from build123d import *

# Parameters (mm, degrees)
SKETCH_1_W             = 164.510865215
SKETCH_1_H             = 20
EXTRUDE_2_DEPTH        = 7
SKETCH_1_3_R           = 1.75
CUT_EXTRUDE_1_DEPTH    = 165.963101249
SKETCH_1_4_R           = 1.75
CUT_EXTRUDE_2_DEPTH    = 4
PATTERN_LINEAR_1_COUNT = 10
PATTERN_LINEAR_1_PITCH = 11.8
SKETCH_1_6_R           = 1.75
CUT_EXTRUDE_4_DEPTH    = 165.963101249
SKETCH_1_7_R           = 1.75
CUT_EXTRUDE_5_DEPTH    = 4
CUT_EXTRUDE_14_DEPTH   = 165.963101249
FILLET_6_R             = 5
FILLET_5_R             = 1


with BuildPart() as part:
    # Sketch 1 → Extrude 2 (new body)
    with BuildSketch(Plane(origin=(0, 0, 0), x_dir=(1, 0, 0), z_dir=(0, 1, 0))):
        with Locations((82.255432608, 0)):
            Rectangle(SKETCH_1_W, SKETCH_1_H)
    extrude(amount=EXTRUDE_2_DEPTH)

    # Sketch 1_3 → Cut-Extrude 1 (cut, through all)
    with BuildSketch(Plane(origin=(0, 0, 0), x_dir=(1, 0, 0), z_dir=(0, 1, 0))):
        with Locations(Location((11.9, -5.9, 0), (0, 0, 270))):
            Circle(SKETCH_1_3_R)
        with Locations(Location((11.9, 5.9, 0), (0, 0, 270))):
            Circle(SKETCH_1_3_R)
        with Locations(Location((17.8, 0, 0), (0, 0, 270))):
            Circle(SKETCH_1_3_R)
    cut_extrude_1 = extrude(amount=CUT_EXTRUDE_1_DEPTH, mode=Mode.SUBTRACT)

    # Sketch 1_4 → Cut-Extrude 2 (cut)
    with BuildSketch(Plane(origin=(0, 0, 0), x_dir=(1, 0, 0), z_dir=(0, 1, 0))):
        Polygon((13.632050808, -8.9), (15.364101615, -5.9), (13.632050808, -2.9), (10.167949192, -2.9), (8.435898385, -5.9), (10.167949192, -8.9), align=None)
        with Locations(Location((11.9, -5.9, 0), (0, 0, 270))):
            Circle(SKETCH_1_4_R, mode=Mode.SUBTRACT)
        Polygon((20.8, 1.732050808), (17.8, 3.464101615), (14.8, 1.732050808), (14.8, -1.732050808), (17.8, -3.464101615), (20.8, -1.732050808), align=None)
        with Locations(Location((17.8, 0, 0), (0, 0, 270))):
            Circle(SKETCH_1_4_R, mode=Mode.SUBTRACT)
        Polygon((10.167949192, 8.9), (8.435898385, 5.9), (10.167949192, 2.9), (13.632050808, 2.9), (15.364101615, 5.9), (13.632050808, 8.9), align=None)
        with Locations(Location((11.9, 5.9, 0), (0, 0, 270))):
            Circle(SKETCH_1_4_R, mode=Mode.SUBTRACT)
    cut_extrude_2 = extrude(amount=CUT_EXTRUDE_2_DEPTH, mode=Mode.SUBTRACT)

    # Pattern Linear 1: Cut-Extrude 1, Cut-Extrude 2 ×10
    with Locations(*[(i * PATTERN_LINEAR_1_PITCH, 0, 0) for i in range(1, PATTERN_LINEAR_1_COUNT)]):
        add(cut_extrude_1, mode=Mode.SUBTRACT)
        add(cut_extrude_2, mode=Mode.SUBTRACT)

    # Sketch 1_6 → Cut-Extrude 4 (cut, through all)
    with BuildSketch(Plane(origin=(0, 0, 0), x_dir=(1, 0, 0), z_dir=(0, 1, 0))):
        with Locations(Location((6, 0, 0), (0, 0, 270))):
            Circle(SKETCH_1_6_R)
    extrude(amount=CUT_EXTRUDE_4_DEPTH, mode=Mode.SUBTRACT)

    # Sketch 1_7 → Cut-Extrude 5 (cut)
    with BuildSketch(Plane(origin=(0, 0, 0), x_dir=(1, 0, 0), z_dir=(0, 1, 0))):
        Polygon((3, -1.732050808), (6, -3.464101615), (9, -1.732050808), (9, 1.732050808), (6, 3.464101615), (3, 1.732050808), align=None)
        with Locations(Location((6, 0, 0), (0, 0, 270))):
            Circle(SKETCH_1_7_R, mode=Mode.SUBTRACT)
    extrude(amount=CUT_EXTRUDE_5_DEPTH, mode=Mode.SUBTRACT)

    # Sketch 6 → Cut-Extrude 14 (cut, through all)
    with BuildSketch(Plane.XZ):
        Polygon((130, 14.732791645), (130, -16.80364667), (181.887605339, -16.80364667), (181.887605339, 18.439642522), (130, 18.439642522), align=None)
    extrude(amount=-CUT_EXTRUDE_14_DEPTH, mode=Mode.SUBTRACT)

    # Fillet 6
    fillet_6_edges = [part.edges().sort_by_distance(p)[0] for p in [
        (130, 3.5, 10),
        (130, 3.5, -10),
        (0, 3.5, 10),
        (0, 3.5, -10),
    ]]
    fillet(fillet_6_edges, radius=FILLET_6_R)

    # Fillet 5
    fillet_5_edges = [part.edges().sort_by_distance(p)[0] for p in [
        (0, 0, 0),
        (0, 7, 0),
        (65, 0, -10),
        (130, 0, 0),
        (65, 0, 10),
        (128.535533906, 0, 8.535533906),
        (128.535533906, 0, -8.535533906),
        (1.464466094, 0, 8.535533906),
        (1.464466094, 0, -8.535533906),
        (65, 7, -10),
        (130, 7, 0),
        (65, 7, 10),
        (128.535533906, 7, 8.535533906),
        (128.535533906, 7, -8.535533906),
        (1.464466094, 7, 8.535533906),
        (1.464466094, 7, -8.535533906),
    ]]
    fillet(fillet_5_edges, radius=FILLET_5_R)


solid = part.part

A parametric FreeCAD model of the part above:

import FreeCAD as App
import Part
import Sketcher
from FreeCAD import Vector
Q = App.Units.Quantity


def edges_at(feature, points):
    """Names of the edges that pass closest to the given points."""
    edges = feature.Shape.Edges
    near = lambda p: min(range(len(edges)), key=lambda i: edges[i].distToShape(Part.Vertex(*p))[0])
    return sorted({f"Edge{near(p) + 1}" for p in points})


def add_polygon(sketch, points):
    """Adds a closed chain of lines whose ends are joined by coincident constraints."""
    first, n = sketch.GeometryCount, len(points)
    for a, b in zip(points, points[1:] + points[:1]):
        sketch.addGeometry(Part.LineSegment(App.Vector(*a, 0), App.Vector(*b, 0)), False)
    for i in range(n):
        sketch.addConstraint(Sketcher.Constraint("Coincident", first + i, 2, first + (i + 1) % n, 1))

doc = App.newDocument("Part")
body = doc.addObject("PartDesign::Body", "Body")

sketch1 = body.newObject("Sketcher::SketchObject", "Sketch")
sketch1.AttachmentSupport = (doc.getObject("XZ_Plane"), [""])
sketch1.MapMode = "FlatFace"
add_polygon(sketch1, [(0, -10), (0, 10), (165, 10), (165, -10)])
sketch1.addConstraint(Sketcher.Constraint("Vertical", 0))
sketch1.addConstraint(Sketcher.Constraint("Horizontal", 1))
sketch1.addConstraint(Sketcher.Constraint("Vertical", 2))
sketch1.addConstraint(Sketcher.Constraint("Horizontal", 3))
sketch1.addConstraint(Sketcher.Constraint("Symmetric", 0, 2, 3, 2, -1, 1))
sketch1.addConstraint(Sketcher.Constraint("DistanceY", 0, 1, 0, 2, Q("20 mm")))
sketch1.addConstraint(Sketcher.Constraint("DistanceX", 1, 1, 1, 2, Q("164.510865 mm")))
pad1 = body.newObject("PartDesign::Pad", "Pad")
pad1.Profile = sketch1
pad1.Length = 7
pad1.Reversed = True

sketch2 = body.newObject("Sketcher::SketchObject", "Sketch001")
sketch2.AttachmentSupport = (doc.getObject("XZ_Plane"), [""])
sketch2.MapMode = "FlatFace"
sketch2.addGeometry(Part.Circle(Vector(11.9, 5.9, 0), Vector(0, 0, 1), 1.8), False)
sketch2.addGeometry(Part.Circle(Vector(11.9, -5.9, 0), Vector(0, 0, 1), 1.8), False)
sketch2.addGeometry(Part.Circle(Vector(17.8, 0, 0), Vector(0, 0, 1), 1.8), False)
sketch2.addConstraint(Sketcher.Constraint("Equal", 0, 1))
sketch2.addConstraint(Sketcher.Constraint("Equal", 1, 2))
sketch2.addConstraint(Sketcher.Constraint("Symmetric", 0, 3, 1, 3, -1))
sketch2.addConstraint(Sketcher.Constraint("PointOnObject", 2, 3, -1))
sketch2.addConstraint(Sketcher.Constraint("Diameter", 0, Q("3.5 mm")))
sketch2.addConstraint(Sketcher.Constraint("DistanceX", -1, 1, 0, 3, Q("11.9 mm")))
sketch2.addConstraint(Sketcher.Constraint("DistanceY", -1, 1, 0, 3, Q("5.9 mm")))
sketch2.addConstraint(Sketcher.Constraint("DistanceX", -1, 1, 2, 3, Q("17.8 mm")))
pocket1 = body.newObject("PartDesign::Pocket", "Pocket")
pocket1.Profile = sketch2
pocket1.Type = "ThroughAll"

sketch3 = body.newObject("Sketcher::SketchObject", "Sketch002")
sketch3.AttachmentSupport = (doc.getObject("XZ_Plane"), [""])
sketch3.MapMode = "FlatFace"
add_polygon(sketch3, [(13.6, 8.9), (15.4, 5.9), (13.6, 2.9), (10.2, 2.9), (8.4, 5.9), (10.2, 8.9)])
sketch3.addGeometry(Part.Circle(Vector(11.9, 5.9, 0), Vector(0, 0, 1), 1.8), False)
add_polygon(sketch3, [(20.8, -1.7), (17.8, -3.5), (14.8, -1.7), (14.8, 1.7), (17.8, 3.5), (20.8, 1.7)])
sketch3.addGeometry(Part.Circle(Vector(17.8, 0, 0), Vector(0, 0, 1), 1.8), False)
add_polygon(sketch3, [(10.2, -8.9), (8.4, -5.9), (10.2, -2.9), (13.6, -2.9), (15.4, -5.9), (13.6, -8.9)])
sketch3.addGeometry(Part.Circle(Vector(11.9, -5.9, 0), Vector(0, 0, 1), 1.8), False)
sketch3.addConstraint(Sketcher.Constraint("Horizontal", 2))
sketch3.addConstraint(Sketcher.Constraint("Horizontal", 5))
sketch3.addConstraint(Sketcher.Constraint("Vertical", 9))
sketch3.addConstraint(Sketcher.Constraint("Vertical", 12))
sketch3.addConstraint(Sketcher.Constraint("Horizontal", 16))
sketch3.addConstraint(Sketcher.Constraint("Horizontal", 19))
sketch3.addConstraint(Sketcher.Constraint("Equal", 6, 13))
sketch3.addConstraint(Sketcher.Constraint("Equal", 13, 20))
sketch3.addConstraint(Sketcher.Constraint("Symmetric", 6, 3, 20, 3, -1))
sketch3.addConstraint(Sketcher.Constraint("Symmetric", 7, 2, 10, 2, -1))
sketch3.addConstraint(Sketcher.Constraint("Symmetric", 3, 2, 14, 2, -1))
sketch3.addConstraint(Sketcher.Constraint("Symmetric", 2, 2, 15, 2, -1))
sketch3.addConstraint(Sketcher.Constraint("Symmetric", 0, 2, 17, 2, -1))
sketch3.addConstraint(Sketcher.Constraint("Symmetric", 5, 2, 18, 2, -1))
sketch3.addConstraint(Sketcher.Constraint("PointOnObject", 13, 3, -1))
sketch3.addConstraint(Sketcher.Constraint("Parallel", 0, 3))
sketch3.addConstraint(Sketcher.Constraint("Parallel", 1, 4))
sketch3.addConstraint(Sketcher.Constraint("Perpendicular", 3, 7))
sketch3.addConstraint(Sketcher.Constraint("Perpendicular", 4, 8))
sketch3.addConstraint(Sketcher.Constraint("Parallel", 7, 10))
sketch3.addConstraint(Sketcher.Constraint("Parallel", 8, 11))
sketch3.addConstraint(Sketcher.Constraint("Perpendicular", 10, 14))
sketch3.addConstraint(Sketcher.Constraint("Perpendicular", 11, 15))
sketch3.addConstraint(Sketcher.Constraint("Parallel", 14, 17))
sketch3.addConstraint(Sketcher.Constraint("Horizontal", 6, 3, 0, 2))
sketch3.addConstraint(Sketcher.Constraint("Horizontal", 0, 2, 3, 2))
sketch3.addConstraint(Sketcher.Constraint("Horizontal", 9, 2, 11, 2))
sketch3.addConstraint(Sketcher.Constraint("Vertical", 2, 2, 4, 2))
sketch3.addConstraint(Sketcher.Constraint("Vertical", 13, 3, 7, 2))
sketch3.addConstraint(Sketcher.Constraint("Equal", 19, 9))
sketch3.addConstraint(Sketcher.Constraint("Equal", 4, 7))
sketch3.addConstraint(Sketcher.Constraint("Diameter", 6, Q("3.5 mm")))
sketch3.addConstraint(Sketcher.Constraint("Angle", 0, Q("-60 deg")))
sketch3.addConstraint(Sketcher.Constraint("DistanceY", 1, 2, 0, 2, Q("3 mm")))
sketch3.addConstraint(Sketcher.Constraint("DistanceX", -1, 1, 6, 3, Q("11.9 mm")))
sketch3.addConstraint(Sketcher.Constraint("DistanceY", -1, 1, 6, 3, Q("5.9 mm")))
sketch3.addConstraint(Sketcher.Constraint("DistanceX", -1, 1, 13, 3, Q("17.8 mm")))
sketch3.addConstraint(Sketcher.Constraint("DistanceX", 2, 2, 2, 1, Q("3.464102 mm")))
sketch3.addConstraint(Sketcher.Constraint("DistanceX", -1, 1, 0, 2, Q("15.364102 mm")))
pocket2 = body.newObject("PartDesign::Pocket", "Pocket001")
pocket2.Profile = sketch3
pocket2.Length = 4
doc.recompute()

linearpattern = body.newObject("PartDesign::LinearPattern", "LinearPattern")
linearpattern.Originals = [pocket1, pocket2]
linearpattern.Direction = (doc.getObject("X_Axis"), [""])
linearpattern.Mode = "offset"
linearpattern.Offset = 11.8
linearpattern.Occurrences = 10
body.Tip = linearpattern

sketch4 = body.newObject("Sketcher::SketchObject", "Sketch003")
sketch4.AttachmentSupport = (doc.getObject("XZ_Plane"), [""])
sketch4.MapMode = "FlatFace"
sketch4.addGeometry(Part.Circle(Vector(6, 0, 0), Vector(0, 0, 1), 1.8), False)
sketch4.addConstraint(Sketcher.Constraint("PointOnObject", 0, 3, -1))
sketch4.addConstraint(Sketcher.Constraint("Diameter", 0, Q("3.5 mm")))
sketch4.addConstraint(Sketcher.Constraint("DistanceX", -1, 1, 0, 3, Q("6 mm")))
pocket3 = body.newObject("PartDesign::Pocket", "Pocket002")
pocket3.Profile = sketch4
pocket3.Type = "ThroughAll"

sketch5 = body.newObject("Sketcher::SketchObject", "Sketch004")
sketch5.AttachmentSupport = (doc.getObject("XZ_Plane"), [""])
sketch5.MapMode = "FlatFace"
add_polygon(sketch5, [(3, 1.7), (6, 3.5), (9, 1.7), (9, -1.7), (6, -3.5), (3, -1.7)])
sketch5.addGeometry(Part.Circle(Vector(6, 0, 0), Vector(0, 0, 1), 1.8), False)
sketch5.addConstraint(Sketcher.Constraint("Vertical", 2))
sketch5.addConstraint(Sketcher.Constraint("Vertical", 5))
sketch5.addConstraint(Sketcher.Constraint("Symmetric", 0, 2, 3, 2, -1))
sketch5.addConstraint(Sketcher.Constraint("PointOnObject", 6, 3, -1))
sketch5.addConstraint(Sketcher.Constraint("Parallel", 0, 3))
sketch5.addConstraint(Sketcher.Constraint("Parallel", 1, 4))
sketch5.addConstraint(Sketcher.Constraint("Horizontal", 2, 2, 4, 2))
sketch5.addConstraint(Sketcher.Constraint("Horizontal", 1, 2, 5, 2))
sketch5.addConstraint(Sketcher.Constraint("Vertical", 6, 3, 0, 2))
sketch5.addConstraint(Sketcher.Constraint("Diameter", 6, Q("3.5 mm")))
sketch5.addConstraint(Sketcher.Constraint("Angle", 0, Q("30 deg")))
sketch5.addConstraint(Sketcher.Constraint("DistanceX", -1, 1, 6, 3, Q("6 mm")))
sketch5.addConstraint(Sketcher.Constraint("DistanceX", -1, 1, 1, 2, Q("9 mm")))
sketch5.addConstraint(Sketcher.Constraint("DistanceY", 2, 2, 2, 1, Q("3.464102 mm")))
pocket4 = body.newObject("PartDesign::Pocket", "Pocket003")
pocket4.Profile = sketch5
pocket4.Length = 4

sketch6 = body.newObject("Sketcher::SketchObject", "Sketch005")
sketch6.AttachmentSupport = (doc.getObject("XZ_Plane"), [""])
sketch6.MapMode = "FlatFace"
add_polygon(sketch6, [(130, -17), (182, -17), (182, 18), (130, 18)])
sketch6.addConstraint(Sketcher.Constraint("Horizontal", 0))
sketch6.addConstraint(Sketcher.Constraint("Vertical", 1))
sketch6.addConstraint(Sketcher.Constraint("Horizontal", 2))
sketch6.addConstraint(Sketcher.Constraint("Vertical", 3))
sketch6.addConstraint(Sketcher.Constraint("DistanceX", -1, 1, 2, 2, Q("130 mm")))
sketch6.addConstraint(Sketcher.Constraint("DistanceY", 1, 1, 1, 2, Q("35.243289 mm")))
sketch6.addConstraint(Sketcher.Constraint("DistanceX", 0, 1, 0, 2, Q("51.887605 mm")))
sketch6.addConstraint(Sketcher.Constraint("DistanceY", 0, 2, -1, 1, Q("16.803647 mm")))
pocket5 = body.newObject("PartDesign::Pocket", "Pocket004")
pocket5.Profile = sketch6
pocket5.Type = "ThroughAll"
doc.recompute()

fillet = body.newObject("PartDesign::Fillet", "Fillet")
fillet.Base = (pocket5, edges_at(pocket5, [
    (130, 3.5, 10),
    (130, 3.5, -10),
    (0, 3.5, 10),
    (0, 3.5, -10),
]))
fillet.Radius = 5
doc.recompute()

fillet2 = body.newObject("PartDesign::Fillet", "Fillet001")
fillet2.Base = (fillet, edges_at(fillet, [
    (0, 0, 0),
    (0, 7, 0),
    (65, 0, -10),
    (130, 0, 0),
    (65, 0, 10),
    (128.536, 0, 8.536),
    (128.536, 0, -8.536),
    (1.464, 0, 8.536),
    (1.464, 0, -8.536),
    (65, 7, -10),
    (130, 7, 0),
    (65, 7, 10),
    (128.536, 7, 8.536),
    (128.536, 7, -8.536),
    (1.464, 7, 8.536),
    (1.464, 7, -8.536),
]))
fillet2.Radius = 1

doc.recompute()
